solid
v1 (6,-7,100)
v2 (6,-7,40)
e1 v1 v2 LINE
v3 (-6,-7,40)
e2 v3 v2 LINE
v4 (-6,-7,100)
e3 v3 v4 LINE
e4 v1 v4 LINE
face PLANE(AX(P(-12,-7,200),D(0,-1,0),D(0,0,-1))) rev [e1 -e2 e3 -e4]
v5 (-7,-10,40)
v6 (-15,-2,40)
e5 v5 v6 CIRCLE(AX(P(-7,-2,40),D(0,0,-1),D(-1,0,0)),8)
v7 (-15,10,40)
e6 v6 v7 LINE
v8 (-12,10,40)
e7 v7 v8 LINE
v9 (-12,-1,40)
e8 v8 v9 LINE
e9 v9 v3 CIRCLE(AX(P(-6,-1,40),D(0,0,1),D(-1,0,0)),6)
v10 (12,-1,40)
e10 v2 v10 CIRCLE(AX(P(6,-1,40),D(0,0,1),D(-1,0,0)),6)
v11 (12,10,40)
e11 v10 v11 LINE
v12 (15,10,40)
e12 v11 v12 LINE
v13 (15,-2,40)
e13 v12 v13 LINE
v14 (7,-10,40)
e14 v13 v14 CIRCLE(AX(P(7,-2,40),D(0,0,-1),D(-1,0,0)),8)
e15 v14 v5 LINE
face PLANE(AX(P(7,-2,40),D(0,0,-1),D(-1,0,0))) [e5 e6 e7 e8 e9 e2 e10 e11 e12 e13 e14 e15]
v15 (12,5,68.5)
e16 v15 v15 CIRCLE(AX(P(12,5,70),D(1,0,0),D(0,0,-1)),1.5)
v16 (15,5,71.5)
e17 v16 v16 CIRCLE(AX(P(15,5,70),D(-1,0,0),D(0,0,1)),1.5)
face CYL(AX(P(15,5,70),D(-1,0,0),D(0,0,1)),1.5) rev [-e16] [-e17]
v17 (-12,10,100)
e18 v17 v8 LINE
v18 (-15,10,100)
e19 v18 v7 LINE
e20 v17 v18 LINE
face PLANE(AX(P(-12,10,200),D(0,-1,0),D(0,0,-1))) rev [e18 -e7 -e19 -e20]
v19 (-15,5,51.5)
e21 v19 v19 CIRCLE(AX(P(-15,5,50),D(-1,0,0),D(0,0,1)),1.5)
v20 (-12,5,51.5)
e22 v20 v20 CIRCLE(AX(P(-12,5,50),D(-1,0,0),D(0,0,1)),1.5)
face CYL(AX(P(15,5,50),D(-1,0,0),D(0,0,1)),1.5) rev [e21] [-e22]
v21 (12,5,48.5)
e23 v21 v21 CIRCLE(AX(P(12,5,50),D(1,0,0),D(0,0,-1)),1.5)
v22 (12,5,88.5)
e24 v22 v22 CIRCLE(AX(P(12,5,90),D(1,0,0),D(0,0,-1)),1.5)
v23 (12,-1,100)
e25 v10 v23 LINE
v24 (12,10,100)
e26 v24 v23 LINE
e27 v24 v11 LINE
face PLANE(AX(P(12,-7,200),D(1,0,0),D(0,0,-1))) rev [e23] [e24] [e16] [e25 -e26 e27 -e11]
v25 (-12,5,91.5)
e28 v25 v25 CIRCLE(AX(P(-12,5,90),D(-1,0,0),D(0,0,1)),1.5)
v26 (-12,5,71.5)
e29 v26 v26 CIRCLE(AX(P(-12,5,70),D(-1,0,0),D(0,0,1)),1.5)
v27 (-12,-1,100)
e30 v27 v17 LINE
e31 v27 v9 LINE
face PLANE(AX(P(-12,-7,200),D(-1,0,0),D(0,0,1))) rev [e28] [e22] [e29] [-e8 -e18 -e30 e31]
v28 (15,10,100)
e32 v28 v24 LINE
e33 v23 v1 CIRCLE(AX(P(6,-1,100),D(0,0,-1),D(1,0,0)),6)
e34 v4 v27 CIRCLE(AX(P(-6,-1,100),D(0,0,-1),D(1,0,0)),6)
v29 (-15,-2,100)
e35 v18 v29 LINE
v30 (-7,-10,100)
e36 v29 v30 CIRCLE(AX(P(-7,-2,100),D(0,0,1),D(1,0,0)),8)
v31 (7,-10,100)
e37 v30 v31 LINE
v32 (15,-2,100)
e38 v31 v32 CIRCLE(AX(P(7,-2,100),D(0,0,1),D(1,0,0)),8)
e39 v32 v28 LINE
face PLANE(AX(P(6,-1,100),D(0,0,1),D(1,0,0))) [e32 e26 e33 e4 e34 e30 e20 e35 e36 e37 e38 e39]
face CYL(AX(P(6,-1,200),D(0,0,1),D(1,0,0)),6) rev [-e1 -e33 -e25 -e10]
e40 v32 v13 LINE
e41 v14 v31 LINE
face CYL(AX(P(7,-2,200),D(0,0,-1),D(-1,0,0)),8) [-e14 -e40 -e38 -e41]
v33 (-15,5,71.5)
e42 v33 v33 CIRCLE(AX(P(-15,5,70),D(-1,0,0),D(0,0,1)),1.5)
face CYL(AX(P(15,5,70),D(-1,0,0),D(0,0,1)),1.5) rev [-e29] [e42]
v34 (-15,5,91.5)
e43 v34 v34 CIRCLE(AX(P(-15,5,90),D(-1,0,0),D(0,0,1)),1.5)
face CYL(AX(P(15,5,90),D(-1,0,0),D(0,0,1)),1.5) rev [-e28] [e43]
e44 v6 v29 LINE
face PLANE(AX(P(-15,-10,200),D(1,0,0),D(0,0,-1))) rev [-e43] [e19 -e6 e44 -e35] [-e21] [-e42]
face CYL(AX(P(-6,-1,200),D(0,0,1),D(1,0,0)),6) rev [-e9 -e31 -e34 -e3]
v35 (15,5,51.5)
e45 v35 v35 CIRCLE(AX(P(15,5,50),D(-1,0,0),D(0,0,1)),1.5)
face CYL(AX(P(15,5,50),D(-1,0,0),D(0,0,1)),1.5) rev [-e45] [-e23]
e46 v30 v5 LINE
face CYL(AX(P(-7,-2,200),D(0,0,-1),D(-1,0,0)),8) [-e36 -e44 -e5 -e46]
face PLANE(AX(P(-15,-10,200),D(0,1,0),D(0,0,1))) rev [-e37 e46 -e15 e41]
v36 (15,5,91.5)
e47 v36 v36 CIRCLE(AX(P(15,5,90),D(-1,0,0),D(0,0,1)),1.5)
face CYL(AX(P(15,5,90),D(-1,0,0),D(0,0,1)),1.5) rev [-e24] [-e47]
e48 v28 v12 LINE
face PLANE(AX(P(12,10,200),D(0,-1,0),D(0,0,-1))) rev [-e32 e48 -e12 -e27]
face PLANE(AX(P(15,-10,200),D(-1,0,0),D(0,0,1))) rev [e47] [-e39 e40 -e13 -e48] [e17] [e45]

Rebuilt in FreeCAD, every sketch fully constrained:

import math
import FreeCAD as App
import Part
import Sketcher


def edges_at(feature, points):
    """Names of the edges that pass closest to the given points."""
    edges = feature.Shape.Edges
    near = lambda p: min(range(len(edges)), key=lambda i: edges[i].distToShape(Part.Vertex(*p))[0])
    return sorted({f"Edge{near(p) + 1}" for p in points})


def add_polygon(sketch, points):
    """Adds a closed chain of lines whose ends are joined by coincident constraints."""
    first, n = sketch.GeometryCount, len(points)
    for a, b in zip(points, points[1:] + points[:1]):
        sketch.addGeometry(Part.LineSegment(App.Vector(*a, 0), App.Vector(*b, 0)), False)
    for i in range(n):
        sketch.addConstraint(Sketcher.Constraint("Coincident", first + i, 2, first + (i + 1) % n, 1))

doc = App.newDocument("Part")
body = doc.addObject("PartDesign::Body", "Body")

sketch1 = body.newObject("Sketcher::SketchObject", "Sketch")
sketch1.AttachmentSupport = (doc.getObject("XY_Plane"), [""])
sketch1.MapMode = "FlatFace"
add_polygon(sketch1, [(12, 10), (12, -7), (-12, -7), (-12, 10), (-15, 10), (-15, -10), (15, -10), (15, 10)])
sketch1.addConstraint(Sketcher.Constraint("Vertical", 0))
sketch1.addConstraint(Sketcher.Constraint("Horizontal", 1))
sketch1.addConstraint(Sketcher.Constraint("Vertical", 2))
sketch1.addConstraint(Sketcher.Constraint("Horizontal", 3))
sketch1.addConstraint(Sketcher.Constraint("Vertical", 4))
sketch1.addConstraint(Sketcher.Constraint("Horizontal", 5))
sketch1.addConstraint(Sketcher.Constraint("Vertical", 6))
sketch1.addConstraint(Sketcher.Constraint("Horizontal", 7))
sketch1.addConstraint(Sketcher.Constraint("Symmetric", 3, 2, 5, 2, -1, 1))
sketch1.addConstraint(Sketcher.Constraint("Symmetric", 2, 2, 7, 2, -2))
sketch1.addConstraint(Sketcher.Constraint("DistanceX", 1, 2, 1, 1, 24.0))
sketch1.addConstraint(Sketcher.Constraint("DistanceX", 3, 2, 3, 1, 3.0))
sketch1.addConstraint(Sketcher.Constraint("DistanceY", 0, 2, 0, 1, 17.0))
sketch1.addConstraint(Sketcher.Constraint("DistanceY", 4, 2, 4, 1, 20.0))
pad1 = body.newObject("PartDesign::Pad", "Pad")
pad1.Profile = sketch1
pad1.Length = 200
doc.recompute()

fillet = body.newObject("PartDesign::Fillet", "Fillet")
fillet.Base = (pad1, edges_at(pad1, [(15, -10, 100), (-15, -10, 100)]))
fillet.Radius = 8
doc.recompute()

fillet2 = body.newObject("PartDesign::Fillet", "Fillet001")
fillet2.Base = (fillet, edges_at(fillet, [(-12, -7, 100), (12, -7, 100)]))
fillet2.Radius = 6

sketch2 = body.newObject("Sketcher::SketchObject", "Sketch001")
sketch2.AttachmentSupport = (doc.getObject("YZ_Plane"), [""])
sketch2.MapMode = "FlatFace"
sketch2.AttachmentOffset = App.Placement(App.Vector(0, 0, -15), App.Rotation())
sketch2.addGeometry(Part.Circle(App.Vector(5, 90, 0), App.Vector(0, 0, 1), 1.5), False)
sketch2.addGeometry(Part.Circle(App.Vector(5, 70, 0), App.Vector(0, 0, 1), 1.5), False)
sketch2.addGeometry(Part.Circle(App.Vector(5, 50, 0), App.Vector(0, 0, 1), 1.5), False)
sketch2.addGeometry(Part.Circle(App.Vector(5, 30, 0), App.Vector(0, 0, 1), 1.5), False)
sketch2.addGeometry(Part.Circle(App.Vector(5, 10, 0), App.Vector(0, 0, 1), 1.5), False)
sketch2.addGeometry(Part.Circle(App.Vector(5, 190, 0), App.Vector(0, 0, 1), 1.5), False)
sketch2.addGeometry(Part.Circle(App.Vector(5, 170, 0), App.Vector(0, 0, 1), 1.5), False)
sketch2.addGeometry(Part.Circle(App.Vector(5, 150, 0), App.Vector(0, 0, 1), 1.5), False)
sketch2.addGeometry(Part.Circle(App.Vector(5, 130, 0), App.Vector(0, 0, 1), 1.5), False)
sketch2.addGeometry(Part.Circle(App.Vector(5, 110, 0), App.Vector(0, 0, 1), 1.5), False)
sketch2.addConstraint(Sketcher.Constraint("Equal", 0, 1))
sketch2.addConstraint(Sketcher.Constraint("Equal", 1, 2))
sketch2.addConstraint(Sketcher.Constraint("Equal", 2, 3))
sketch2.addConstraint(Sketcher.Constraint("Equal", 3, 4))
sketch2.addConstraint(Sketcher.Constraint("Equal", 4, 5))
sketch2.addConstraint(Sketcher.Constraint("Equal", 5, 6))
sketch2.addConstraint(Sketcher.Constraint("Equal", 6, 7))
sketch2.addConstraint(Sketcher.Constraint("Equal", 7, 8))
sketch2.addConstraint(Sketcher.Constraint("Equal", 8, 9))
sketch2.addConstraint(Sketcher.Constraint("Vertical", 0, 3, 1, 3))
sketch2.addConstraint(Sketcher.Constraint("Vertical", 1, 3, 2, 3))
sketch2.addConstraint(Sketcher.Constraint("Vertical", 2, 3, 3, 3))
sketch2.addConstraint(Sketcher.Constraint("Vertical", 3, 3, 4, 3))
sketch2.addConstraint(Sketcher.Constraint("Vertical", 4, 3, 5, 3))
sketch2.addConstraint(Sketcher.Constraint("Vertical", 5, 3, 6, 3))
sketch2.addConstraint(Sketcher.Constraint("Vertical", 6, 3, 7, 3))
sketch2.addConstraint(Sketcher.Constraint("Vertical", 7, 3, 8, 3))
sketch2.addConstraint(Sketcher.Constraint("Vertical", 8, 3, 9, 3))
sketch2.addConstraint(Sketcher.Constraint("Diameter", 0, 3.0))
sketch2.addConstraint(Sketcher.Constraint("DistanceX", -1, 1, 0, 3, 5.0))
sketch2.addConstraint(Sketcher.Constraint("DistanceY", -1, 1, 0, 3, 90.0))
sketch2.addConstraint(Sketcher.Constraint("DistanceY", -1, 1, 1, 3, 70.0))
sketch2.addConstraint(Sketcher.Constraint("DistanceY", -1, 1, 2, 3, 50.0))
sketch2.addConstraint(Sketcher.Constraint("DistanceY", -1, 1, 3, 3, 30.0))
sketch2.addConstraint(Sketcher.Constraint("DistanceY", -1, 1, 4, 3, 10.0))
sketch2.addConstraint(Sketcher.Constraint("DistanceY", -1, 1, 5, 3, 190.0))
sketch2.addConstraint(Sketcher.Constraint("DistanceY", -1, 1, 6, 3, 170.0))
sketch2.addConstraint(Sketcher.Constraint("DistanceY", -1, 1, 7, 3, 150.0))
sketch2.addConstraint(Sketcher.Constraint("DistanceY", -1, 1, 8, 3, 130.0))
sketch2.addConstraint(Sketcher.Constraint("DistanceY", -1, 1, 9, 3, 110.0))
pocket1 = body.newObject("PartDesign::Pocket", "Pocket")
pocket1.Profile = sketch2
pocket1.Type = "ThroughAll"
pocket1.Reversed = True

sketch3 = body.newObject("Sketcher::SketchObject", "Sketch002")
sketch3.AttachmentSupport = (doc.getObject("YZ_Plane"), [""])
sketch3.MapMode = "FlatFace"
sketch3.AttachmentOffset = App.Placement(App.Vector(0, 0, -15), App.Rotation())
add_polygon(sketch3, [(10, 140), (-14, 140), (-14, 203), (10, 203)])
sketch3.addConstraint(Sketcher.Constraint("Horizontal", 0))
sketch3.addConstraint(Sketcher.Constraint("Vertical", 1))
sketch3.addConstraint(Sketcher.Constraint("Horizontal", 2))
sketch3.addConstraint(Sketcher.Constraint("Vertical", 3))
sketch3.addConstraint(Sketcher.Constraint("DistanceY", -1, 1, 0, 2, 140.0))
sketch3.addConstraint(Sketcher.Constraint("DistanceX", -1, 1, 2, 2, 10.0))
sketch3.addConstraint(Sketcher.Constraint("DistanceX", 0, 2, 0, 1, 24.316743))
sketch3.addConstraint(Sketcher.Constraint("DistanceY", 1, 1, 1, 2, 63.128996))
pocket2 = body.newObject("PartDesign::Pocket", "Pocket001")
pocket2.Profile = sketch3
pocket2.Length = 59
pocket2.Reversed = True

sketch4 = body.newObject("Sketcher::SketchObject", "Sketch003")
sketch4.AttachmentSupport = (doc.getObject("XY_Plane"), [""])
sketch4.MapMode = "FlatFace"
sketch4.AttachmentOffset = App.Placement(App.Vector(0, 0, 40), App.Rotation())
sketch4.addGeometry(Part.LineSegment(App.Vector(15, 10, 0), App.Vector(15, -2, 0)), False)
sketch4.addGeometry(Part.ArcOfCircle(Part.Circle(App.Vector(7, -2, 0), App.Vector(0, 0, 1), 8), math.radians(-90), math.radians(0)), False)
sketch4.addGeometry(Part.LineSegment(App.Vector(7, -10, 0), App.Vector(-7, -10, 0)), False)
sketch4.addGeometry(Part.ArcOfCircle(Part.Circle(App.Vector(-7, -2, 0), App.Vector(0, 0, 1), 8), math.radians(-180), math.radians(-90)), False)
sketch4.addGeometry(Part.LineSegment(App.Vector(-15, -2, 0), App.Vector(-15, 10, 0)), False)
sketch4.addGeometry(Part.LineSegment(App.Vector(-15, 10, 0), App.Vector(-12, 10, 0)), False)
sketch4.addGeometry(Part.LineSegment(App.Vector(-12, 10, 0), App.Vector(-12, -1, 0)), False)
sketch4.addGeometry(Part.ArcOfCircle(Part.Circle(App.Vector(-6, -1, 0), App.Vector(0, 0, 1), 6), math.radians(180), math.radians(270)), False)
sketch4.addGeometry(Part.LineSegment(App.Vector(-6, -7, 0), App.Vector(6, -7, 0)), False)
sketch4.addGeometry(Part.ArcOfCircle(Part.Circle(App.Vector(6, -1, 0), App.Vector(0, 0, 1), 6), math.radians(-90), math.radians(0)), False)
sketch4.addGeometry(Part.LineSegment(App.Vector(12, -1, 0), App.Vector(12, 10, 0)), False)
sketch4.addGeometry(Part.LineSegment(App.Vector(12, 10, 0), App.Vector(15, 10, 0)), False)
sketch4.addConstraint(Sketcher.Constraint("Tangent", 0, 2, 1, 2))
sketch4.addConstraint(Sketcher.Constraint("Tangent", 1, 1, 2, 1))
sketch4.addConstraint(Sketcher.Constraint("Tangent", 2, 2, 3, 2))
sketch4.addConstraint(Sketcher.Constraint("Tangent", 3, 1, 4, 1))
sketch4.addConstraint(Sketcher.Constraint("Coincident", 4, 2, 5, 1))
sketch4.addConstraint(Sketcher.Constraint("Coincident", 5, 2, 6, 1))
sketch4.addConstraint(Sketcher.Constraint("Tangent", 6, 2, 7, 1))
sketch4.addConstraint(Sketcher.Constraint("Tangent", 7, 2, 8, 1))
sketch4.addConstraint(Sketcher.Constraint("Tangent", 8, 2, 9, 1))
sketch4.addConstraint(Sketcher.Constraint("Tangent", 9, 2, 10, 1))
sketch4.addConstraint(Sketcher.Constraint("Coincident", 10, 2, 11, 1))
sketch4.addConstraint(Sketcher.Constraint("Coincident", 11, 2, 0, 1))
sketch4.addConstraint(Sketcher.Constraint("Vertical", 0))
sketch4.addConstraint(Sketcher.Constraint("Horizontal", 2))
sketch4.addConstraint(Sketcher.Constraint("Vertical", 4))
sketch4.addConstraint(Sketcher.Constraint("Horizontal", 5))
sketch4.addConstraint(Sketcher.Constraint("Vertical", 6))
sketch4.addConstraint(Sketcher.Constraint("Horizontal", 8))
sketch4.addConstraint(Sketcher.Constraint("Vertical", 10))
sketch4.addConstraint(Sketcher.Constraint("Horizontal", 11))
sketch4.addConstraint(Sketcher.Constraint("Equal", 1, 3))
sketch4.addConstraint(Sketcher.Constraint("Equal", 7, 9))
sketch4.addConstraint(Sketcher.Constraint("Symmetric", 5, 2, 10, 2, -2))
sketch4.addConstraint(Sketcher.Constraint("Equal", 5, 11))
sketch4.addConstraint(Sketcher.Constraint("Equal", 8, 0))
sketch4.addConstraint(Sketcher.Constraint("Radius", 1, 8.0))
sketch4.addConstraint(Sketcher.Constraint("Radius", 7, 6.0))
sketch4.addConstraint(Sketcher.Constraint("DistanceX", 2, 2, 2, 1, 14.0))
sketch4.addConstraint(Sketcher.Constraint("DistanceX", 5, 1, 5, 2, 3.0))
sketch4.addConstraint(Sketcher.Constraint("DistanceY", 6, 2, 6, 1, 11.0))
sketch4.addConstraint(Sketcher.Constraint("DistanceY", 1, 3, -1, 1, 2.0))
pocket3 = body.newObject("PartDesign::Pocket", "Pocket002")
pocket3.Profile = sketch4
pocket3.Length = 40

sketch5 = body.newObject("Sketcher::SketchObject", "Sketch004")
sketch5.AttachmentSupport = (doc.getObject("XY_Plane"), [""])
sketch5.MapMode = "FlatFace"
sketch5.AttachmentOffset = App.Placement(App.Vector(0, 0, 140), App.Rotation())
sketch5.addGeometry(Part.LineSegment(App.Vector(15, 10, 0), App.Vector(12, 10, 0)), False)
sketch5.addGeometry(Part.LineSegment(App.Vector(12, 10, 0), App.Vector(12, -1, 0)), False)
sketch5.addGeometry(Part.ArcOfCircle(Part.Circle(App.Vector(6, -1, 0), App.Vector(0, 0, 1), 6), math.radians(-90), math.radians(0)), False)
sketch5.addGeometry(Part.LineSegment(App.Vector(6, -7, 0), App.Vector(-6, -7, 0)), False)
sketch5.addGeometry(Part.ArcOfCircle(Part.Circle(App.Vector(-6, -1, 0), App.Vector(0, 0, 1), 6), math.radians(180), math.radians(270)), False)
sketch5.addGeometry(Part.LineSegment(App.Vector(-12, -1, 0), App.Vector(-12, 10, 0)), False)
sketch5.addGeometry(Part.LineSegment(App.Vector(-12, 10, 0), App.Vector(-15, 10, 0)), False)
sketch5.addGeometry(Part.LineSegment(App.Vector(-15, 10, 0), App.Vector(-15, -2, 0)), False)
sketch5.addGeometry(Part.ArcOfCircle(Part.Circle(App.Vector(-7, -2, 0), App.Vector(0, 0, 1), 8), math.radians(-180), math.radians(-90)), False)
sketch5.addGeometry(Part.LineSegment(App.Vector(-7, -10, 0), App.Vector(7, -10, 0)), False)
sketch5.addGeometry(Part.ArcOfCircle(Part.Circle(App.Vector(7, -2, 0), App.Vector(0, 0, 1), 8), math.radians(-90), math.radians(0)), False)
sketch5.addGeometry(Part.LineSegment(App.Vector(15, -2, 0), App.Vector(15, 10, 0)), False)
sketch5.addConstraint(Sketcher.Constraint("Coincident", 0, 2, 1, 1))
sketch5.addConstraint(Sketcher.Constraint("Tangent", 1, 2, 2, 2))
sketch5.addConstraint(Sketcher.Constraint("Tangent", 2, 1, 3, 1))
sketch5.addConstraint(Sketcher.Constraint("Tangent", 3, 2, 4, 2))
sketch5.addConstraint(Sketcher.Constraint("Tangent", 4, 1, 5, 1))
sketch5.addConstraint(Sketcher.Constraint("Coincident", 5, 2, 6, 1))
sketch5.addConstraint(Sketcher.Constraint("Coincident", 6, 2, 7, 1))
sketch5.addConstraint(Sketcher.Constraint("Tangent", 7, 2, 8, 1))
sketch5.addConstraint(Sketcher.Constraint("Tangent", 8, 2, 9, 1))
sketch5.addConstraint(Sketcher.Constraint("Tangent", 9, 2, 10, 1))
sketch5.addConstraint(Sketcher.Constraint("Tangent", 10, 2, 11, 1))
sketch5.addConstraint(Sketcher.Constraint("Coincident", 11, 2, 0, 1))
sketch5.addConstraint(Sketcher.Constraint("Horizontal", 0))
sketch5.addConstraint(Sketcher.Constraint("Vertical", 1))
sketch5.addConstraint(Sketcher.Constraint("Horizontal", 3))
sketch5.addConstraint(Sketcher.Constraint("Vertical", 5))
sketch5.addConstraint(Sketcher.Constraint("Horizontal", 6))
sketch5.addConstraint(Sketcher.Constraint("Vertical", 7))
sketch5.addConstraint(Sketcher.Constraint("Horizontal", 9))
sketch5.addConstraint(Sketcher.Constraint("Vertical", 11))
sketch5.addConstraint(Sketcher.Constraint("Equal", 2, 4))
sketch5.addConstraint(Sketcher.Constraint("Equal", 8, 10))
sketch5.addConstraint(Sketcher.Constraint("Symmetric", 0, 2, 5, 2, -2))
sketch5.addConstraint(Sketcher.Constraint("Equal", 0, 6))
sketch5.addConstraint(Sketcher.Constraint("Equal", 3, 7))
sketch5.addConstraint(Sketcher.Constraint("Radius", 2, 6.0))
sketch5.addConstraint(Sketcher.Constraint("Radius", 8, 8.0))
sketch5.addConstraint(Sketcher.Constraint("DistanceX", 0, 2, 0, 1, 3.0))
sketch5.addConstraint(Sketcher.Constraint("DistanceX", 3, 2, 3, 1, 12.0))
sketch5.addConstraint(Sketcher.Constraint("DistanceY", 1, 2, 1, 1, 11.0))
sketch5.addConstraint(Sketcher.Constraint("DistanceY", 2, 3, -1, 1, 1.0))
pocket4 = body.newObject("PartDesign::Pocket", "Pocket003")
pocket4.Profile = sketch5
pocket4.Length = 40

doc.recompute()
